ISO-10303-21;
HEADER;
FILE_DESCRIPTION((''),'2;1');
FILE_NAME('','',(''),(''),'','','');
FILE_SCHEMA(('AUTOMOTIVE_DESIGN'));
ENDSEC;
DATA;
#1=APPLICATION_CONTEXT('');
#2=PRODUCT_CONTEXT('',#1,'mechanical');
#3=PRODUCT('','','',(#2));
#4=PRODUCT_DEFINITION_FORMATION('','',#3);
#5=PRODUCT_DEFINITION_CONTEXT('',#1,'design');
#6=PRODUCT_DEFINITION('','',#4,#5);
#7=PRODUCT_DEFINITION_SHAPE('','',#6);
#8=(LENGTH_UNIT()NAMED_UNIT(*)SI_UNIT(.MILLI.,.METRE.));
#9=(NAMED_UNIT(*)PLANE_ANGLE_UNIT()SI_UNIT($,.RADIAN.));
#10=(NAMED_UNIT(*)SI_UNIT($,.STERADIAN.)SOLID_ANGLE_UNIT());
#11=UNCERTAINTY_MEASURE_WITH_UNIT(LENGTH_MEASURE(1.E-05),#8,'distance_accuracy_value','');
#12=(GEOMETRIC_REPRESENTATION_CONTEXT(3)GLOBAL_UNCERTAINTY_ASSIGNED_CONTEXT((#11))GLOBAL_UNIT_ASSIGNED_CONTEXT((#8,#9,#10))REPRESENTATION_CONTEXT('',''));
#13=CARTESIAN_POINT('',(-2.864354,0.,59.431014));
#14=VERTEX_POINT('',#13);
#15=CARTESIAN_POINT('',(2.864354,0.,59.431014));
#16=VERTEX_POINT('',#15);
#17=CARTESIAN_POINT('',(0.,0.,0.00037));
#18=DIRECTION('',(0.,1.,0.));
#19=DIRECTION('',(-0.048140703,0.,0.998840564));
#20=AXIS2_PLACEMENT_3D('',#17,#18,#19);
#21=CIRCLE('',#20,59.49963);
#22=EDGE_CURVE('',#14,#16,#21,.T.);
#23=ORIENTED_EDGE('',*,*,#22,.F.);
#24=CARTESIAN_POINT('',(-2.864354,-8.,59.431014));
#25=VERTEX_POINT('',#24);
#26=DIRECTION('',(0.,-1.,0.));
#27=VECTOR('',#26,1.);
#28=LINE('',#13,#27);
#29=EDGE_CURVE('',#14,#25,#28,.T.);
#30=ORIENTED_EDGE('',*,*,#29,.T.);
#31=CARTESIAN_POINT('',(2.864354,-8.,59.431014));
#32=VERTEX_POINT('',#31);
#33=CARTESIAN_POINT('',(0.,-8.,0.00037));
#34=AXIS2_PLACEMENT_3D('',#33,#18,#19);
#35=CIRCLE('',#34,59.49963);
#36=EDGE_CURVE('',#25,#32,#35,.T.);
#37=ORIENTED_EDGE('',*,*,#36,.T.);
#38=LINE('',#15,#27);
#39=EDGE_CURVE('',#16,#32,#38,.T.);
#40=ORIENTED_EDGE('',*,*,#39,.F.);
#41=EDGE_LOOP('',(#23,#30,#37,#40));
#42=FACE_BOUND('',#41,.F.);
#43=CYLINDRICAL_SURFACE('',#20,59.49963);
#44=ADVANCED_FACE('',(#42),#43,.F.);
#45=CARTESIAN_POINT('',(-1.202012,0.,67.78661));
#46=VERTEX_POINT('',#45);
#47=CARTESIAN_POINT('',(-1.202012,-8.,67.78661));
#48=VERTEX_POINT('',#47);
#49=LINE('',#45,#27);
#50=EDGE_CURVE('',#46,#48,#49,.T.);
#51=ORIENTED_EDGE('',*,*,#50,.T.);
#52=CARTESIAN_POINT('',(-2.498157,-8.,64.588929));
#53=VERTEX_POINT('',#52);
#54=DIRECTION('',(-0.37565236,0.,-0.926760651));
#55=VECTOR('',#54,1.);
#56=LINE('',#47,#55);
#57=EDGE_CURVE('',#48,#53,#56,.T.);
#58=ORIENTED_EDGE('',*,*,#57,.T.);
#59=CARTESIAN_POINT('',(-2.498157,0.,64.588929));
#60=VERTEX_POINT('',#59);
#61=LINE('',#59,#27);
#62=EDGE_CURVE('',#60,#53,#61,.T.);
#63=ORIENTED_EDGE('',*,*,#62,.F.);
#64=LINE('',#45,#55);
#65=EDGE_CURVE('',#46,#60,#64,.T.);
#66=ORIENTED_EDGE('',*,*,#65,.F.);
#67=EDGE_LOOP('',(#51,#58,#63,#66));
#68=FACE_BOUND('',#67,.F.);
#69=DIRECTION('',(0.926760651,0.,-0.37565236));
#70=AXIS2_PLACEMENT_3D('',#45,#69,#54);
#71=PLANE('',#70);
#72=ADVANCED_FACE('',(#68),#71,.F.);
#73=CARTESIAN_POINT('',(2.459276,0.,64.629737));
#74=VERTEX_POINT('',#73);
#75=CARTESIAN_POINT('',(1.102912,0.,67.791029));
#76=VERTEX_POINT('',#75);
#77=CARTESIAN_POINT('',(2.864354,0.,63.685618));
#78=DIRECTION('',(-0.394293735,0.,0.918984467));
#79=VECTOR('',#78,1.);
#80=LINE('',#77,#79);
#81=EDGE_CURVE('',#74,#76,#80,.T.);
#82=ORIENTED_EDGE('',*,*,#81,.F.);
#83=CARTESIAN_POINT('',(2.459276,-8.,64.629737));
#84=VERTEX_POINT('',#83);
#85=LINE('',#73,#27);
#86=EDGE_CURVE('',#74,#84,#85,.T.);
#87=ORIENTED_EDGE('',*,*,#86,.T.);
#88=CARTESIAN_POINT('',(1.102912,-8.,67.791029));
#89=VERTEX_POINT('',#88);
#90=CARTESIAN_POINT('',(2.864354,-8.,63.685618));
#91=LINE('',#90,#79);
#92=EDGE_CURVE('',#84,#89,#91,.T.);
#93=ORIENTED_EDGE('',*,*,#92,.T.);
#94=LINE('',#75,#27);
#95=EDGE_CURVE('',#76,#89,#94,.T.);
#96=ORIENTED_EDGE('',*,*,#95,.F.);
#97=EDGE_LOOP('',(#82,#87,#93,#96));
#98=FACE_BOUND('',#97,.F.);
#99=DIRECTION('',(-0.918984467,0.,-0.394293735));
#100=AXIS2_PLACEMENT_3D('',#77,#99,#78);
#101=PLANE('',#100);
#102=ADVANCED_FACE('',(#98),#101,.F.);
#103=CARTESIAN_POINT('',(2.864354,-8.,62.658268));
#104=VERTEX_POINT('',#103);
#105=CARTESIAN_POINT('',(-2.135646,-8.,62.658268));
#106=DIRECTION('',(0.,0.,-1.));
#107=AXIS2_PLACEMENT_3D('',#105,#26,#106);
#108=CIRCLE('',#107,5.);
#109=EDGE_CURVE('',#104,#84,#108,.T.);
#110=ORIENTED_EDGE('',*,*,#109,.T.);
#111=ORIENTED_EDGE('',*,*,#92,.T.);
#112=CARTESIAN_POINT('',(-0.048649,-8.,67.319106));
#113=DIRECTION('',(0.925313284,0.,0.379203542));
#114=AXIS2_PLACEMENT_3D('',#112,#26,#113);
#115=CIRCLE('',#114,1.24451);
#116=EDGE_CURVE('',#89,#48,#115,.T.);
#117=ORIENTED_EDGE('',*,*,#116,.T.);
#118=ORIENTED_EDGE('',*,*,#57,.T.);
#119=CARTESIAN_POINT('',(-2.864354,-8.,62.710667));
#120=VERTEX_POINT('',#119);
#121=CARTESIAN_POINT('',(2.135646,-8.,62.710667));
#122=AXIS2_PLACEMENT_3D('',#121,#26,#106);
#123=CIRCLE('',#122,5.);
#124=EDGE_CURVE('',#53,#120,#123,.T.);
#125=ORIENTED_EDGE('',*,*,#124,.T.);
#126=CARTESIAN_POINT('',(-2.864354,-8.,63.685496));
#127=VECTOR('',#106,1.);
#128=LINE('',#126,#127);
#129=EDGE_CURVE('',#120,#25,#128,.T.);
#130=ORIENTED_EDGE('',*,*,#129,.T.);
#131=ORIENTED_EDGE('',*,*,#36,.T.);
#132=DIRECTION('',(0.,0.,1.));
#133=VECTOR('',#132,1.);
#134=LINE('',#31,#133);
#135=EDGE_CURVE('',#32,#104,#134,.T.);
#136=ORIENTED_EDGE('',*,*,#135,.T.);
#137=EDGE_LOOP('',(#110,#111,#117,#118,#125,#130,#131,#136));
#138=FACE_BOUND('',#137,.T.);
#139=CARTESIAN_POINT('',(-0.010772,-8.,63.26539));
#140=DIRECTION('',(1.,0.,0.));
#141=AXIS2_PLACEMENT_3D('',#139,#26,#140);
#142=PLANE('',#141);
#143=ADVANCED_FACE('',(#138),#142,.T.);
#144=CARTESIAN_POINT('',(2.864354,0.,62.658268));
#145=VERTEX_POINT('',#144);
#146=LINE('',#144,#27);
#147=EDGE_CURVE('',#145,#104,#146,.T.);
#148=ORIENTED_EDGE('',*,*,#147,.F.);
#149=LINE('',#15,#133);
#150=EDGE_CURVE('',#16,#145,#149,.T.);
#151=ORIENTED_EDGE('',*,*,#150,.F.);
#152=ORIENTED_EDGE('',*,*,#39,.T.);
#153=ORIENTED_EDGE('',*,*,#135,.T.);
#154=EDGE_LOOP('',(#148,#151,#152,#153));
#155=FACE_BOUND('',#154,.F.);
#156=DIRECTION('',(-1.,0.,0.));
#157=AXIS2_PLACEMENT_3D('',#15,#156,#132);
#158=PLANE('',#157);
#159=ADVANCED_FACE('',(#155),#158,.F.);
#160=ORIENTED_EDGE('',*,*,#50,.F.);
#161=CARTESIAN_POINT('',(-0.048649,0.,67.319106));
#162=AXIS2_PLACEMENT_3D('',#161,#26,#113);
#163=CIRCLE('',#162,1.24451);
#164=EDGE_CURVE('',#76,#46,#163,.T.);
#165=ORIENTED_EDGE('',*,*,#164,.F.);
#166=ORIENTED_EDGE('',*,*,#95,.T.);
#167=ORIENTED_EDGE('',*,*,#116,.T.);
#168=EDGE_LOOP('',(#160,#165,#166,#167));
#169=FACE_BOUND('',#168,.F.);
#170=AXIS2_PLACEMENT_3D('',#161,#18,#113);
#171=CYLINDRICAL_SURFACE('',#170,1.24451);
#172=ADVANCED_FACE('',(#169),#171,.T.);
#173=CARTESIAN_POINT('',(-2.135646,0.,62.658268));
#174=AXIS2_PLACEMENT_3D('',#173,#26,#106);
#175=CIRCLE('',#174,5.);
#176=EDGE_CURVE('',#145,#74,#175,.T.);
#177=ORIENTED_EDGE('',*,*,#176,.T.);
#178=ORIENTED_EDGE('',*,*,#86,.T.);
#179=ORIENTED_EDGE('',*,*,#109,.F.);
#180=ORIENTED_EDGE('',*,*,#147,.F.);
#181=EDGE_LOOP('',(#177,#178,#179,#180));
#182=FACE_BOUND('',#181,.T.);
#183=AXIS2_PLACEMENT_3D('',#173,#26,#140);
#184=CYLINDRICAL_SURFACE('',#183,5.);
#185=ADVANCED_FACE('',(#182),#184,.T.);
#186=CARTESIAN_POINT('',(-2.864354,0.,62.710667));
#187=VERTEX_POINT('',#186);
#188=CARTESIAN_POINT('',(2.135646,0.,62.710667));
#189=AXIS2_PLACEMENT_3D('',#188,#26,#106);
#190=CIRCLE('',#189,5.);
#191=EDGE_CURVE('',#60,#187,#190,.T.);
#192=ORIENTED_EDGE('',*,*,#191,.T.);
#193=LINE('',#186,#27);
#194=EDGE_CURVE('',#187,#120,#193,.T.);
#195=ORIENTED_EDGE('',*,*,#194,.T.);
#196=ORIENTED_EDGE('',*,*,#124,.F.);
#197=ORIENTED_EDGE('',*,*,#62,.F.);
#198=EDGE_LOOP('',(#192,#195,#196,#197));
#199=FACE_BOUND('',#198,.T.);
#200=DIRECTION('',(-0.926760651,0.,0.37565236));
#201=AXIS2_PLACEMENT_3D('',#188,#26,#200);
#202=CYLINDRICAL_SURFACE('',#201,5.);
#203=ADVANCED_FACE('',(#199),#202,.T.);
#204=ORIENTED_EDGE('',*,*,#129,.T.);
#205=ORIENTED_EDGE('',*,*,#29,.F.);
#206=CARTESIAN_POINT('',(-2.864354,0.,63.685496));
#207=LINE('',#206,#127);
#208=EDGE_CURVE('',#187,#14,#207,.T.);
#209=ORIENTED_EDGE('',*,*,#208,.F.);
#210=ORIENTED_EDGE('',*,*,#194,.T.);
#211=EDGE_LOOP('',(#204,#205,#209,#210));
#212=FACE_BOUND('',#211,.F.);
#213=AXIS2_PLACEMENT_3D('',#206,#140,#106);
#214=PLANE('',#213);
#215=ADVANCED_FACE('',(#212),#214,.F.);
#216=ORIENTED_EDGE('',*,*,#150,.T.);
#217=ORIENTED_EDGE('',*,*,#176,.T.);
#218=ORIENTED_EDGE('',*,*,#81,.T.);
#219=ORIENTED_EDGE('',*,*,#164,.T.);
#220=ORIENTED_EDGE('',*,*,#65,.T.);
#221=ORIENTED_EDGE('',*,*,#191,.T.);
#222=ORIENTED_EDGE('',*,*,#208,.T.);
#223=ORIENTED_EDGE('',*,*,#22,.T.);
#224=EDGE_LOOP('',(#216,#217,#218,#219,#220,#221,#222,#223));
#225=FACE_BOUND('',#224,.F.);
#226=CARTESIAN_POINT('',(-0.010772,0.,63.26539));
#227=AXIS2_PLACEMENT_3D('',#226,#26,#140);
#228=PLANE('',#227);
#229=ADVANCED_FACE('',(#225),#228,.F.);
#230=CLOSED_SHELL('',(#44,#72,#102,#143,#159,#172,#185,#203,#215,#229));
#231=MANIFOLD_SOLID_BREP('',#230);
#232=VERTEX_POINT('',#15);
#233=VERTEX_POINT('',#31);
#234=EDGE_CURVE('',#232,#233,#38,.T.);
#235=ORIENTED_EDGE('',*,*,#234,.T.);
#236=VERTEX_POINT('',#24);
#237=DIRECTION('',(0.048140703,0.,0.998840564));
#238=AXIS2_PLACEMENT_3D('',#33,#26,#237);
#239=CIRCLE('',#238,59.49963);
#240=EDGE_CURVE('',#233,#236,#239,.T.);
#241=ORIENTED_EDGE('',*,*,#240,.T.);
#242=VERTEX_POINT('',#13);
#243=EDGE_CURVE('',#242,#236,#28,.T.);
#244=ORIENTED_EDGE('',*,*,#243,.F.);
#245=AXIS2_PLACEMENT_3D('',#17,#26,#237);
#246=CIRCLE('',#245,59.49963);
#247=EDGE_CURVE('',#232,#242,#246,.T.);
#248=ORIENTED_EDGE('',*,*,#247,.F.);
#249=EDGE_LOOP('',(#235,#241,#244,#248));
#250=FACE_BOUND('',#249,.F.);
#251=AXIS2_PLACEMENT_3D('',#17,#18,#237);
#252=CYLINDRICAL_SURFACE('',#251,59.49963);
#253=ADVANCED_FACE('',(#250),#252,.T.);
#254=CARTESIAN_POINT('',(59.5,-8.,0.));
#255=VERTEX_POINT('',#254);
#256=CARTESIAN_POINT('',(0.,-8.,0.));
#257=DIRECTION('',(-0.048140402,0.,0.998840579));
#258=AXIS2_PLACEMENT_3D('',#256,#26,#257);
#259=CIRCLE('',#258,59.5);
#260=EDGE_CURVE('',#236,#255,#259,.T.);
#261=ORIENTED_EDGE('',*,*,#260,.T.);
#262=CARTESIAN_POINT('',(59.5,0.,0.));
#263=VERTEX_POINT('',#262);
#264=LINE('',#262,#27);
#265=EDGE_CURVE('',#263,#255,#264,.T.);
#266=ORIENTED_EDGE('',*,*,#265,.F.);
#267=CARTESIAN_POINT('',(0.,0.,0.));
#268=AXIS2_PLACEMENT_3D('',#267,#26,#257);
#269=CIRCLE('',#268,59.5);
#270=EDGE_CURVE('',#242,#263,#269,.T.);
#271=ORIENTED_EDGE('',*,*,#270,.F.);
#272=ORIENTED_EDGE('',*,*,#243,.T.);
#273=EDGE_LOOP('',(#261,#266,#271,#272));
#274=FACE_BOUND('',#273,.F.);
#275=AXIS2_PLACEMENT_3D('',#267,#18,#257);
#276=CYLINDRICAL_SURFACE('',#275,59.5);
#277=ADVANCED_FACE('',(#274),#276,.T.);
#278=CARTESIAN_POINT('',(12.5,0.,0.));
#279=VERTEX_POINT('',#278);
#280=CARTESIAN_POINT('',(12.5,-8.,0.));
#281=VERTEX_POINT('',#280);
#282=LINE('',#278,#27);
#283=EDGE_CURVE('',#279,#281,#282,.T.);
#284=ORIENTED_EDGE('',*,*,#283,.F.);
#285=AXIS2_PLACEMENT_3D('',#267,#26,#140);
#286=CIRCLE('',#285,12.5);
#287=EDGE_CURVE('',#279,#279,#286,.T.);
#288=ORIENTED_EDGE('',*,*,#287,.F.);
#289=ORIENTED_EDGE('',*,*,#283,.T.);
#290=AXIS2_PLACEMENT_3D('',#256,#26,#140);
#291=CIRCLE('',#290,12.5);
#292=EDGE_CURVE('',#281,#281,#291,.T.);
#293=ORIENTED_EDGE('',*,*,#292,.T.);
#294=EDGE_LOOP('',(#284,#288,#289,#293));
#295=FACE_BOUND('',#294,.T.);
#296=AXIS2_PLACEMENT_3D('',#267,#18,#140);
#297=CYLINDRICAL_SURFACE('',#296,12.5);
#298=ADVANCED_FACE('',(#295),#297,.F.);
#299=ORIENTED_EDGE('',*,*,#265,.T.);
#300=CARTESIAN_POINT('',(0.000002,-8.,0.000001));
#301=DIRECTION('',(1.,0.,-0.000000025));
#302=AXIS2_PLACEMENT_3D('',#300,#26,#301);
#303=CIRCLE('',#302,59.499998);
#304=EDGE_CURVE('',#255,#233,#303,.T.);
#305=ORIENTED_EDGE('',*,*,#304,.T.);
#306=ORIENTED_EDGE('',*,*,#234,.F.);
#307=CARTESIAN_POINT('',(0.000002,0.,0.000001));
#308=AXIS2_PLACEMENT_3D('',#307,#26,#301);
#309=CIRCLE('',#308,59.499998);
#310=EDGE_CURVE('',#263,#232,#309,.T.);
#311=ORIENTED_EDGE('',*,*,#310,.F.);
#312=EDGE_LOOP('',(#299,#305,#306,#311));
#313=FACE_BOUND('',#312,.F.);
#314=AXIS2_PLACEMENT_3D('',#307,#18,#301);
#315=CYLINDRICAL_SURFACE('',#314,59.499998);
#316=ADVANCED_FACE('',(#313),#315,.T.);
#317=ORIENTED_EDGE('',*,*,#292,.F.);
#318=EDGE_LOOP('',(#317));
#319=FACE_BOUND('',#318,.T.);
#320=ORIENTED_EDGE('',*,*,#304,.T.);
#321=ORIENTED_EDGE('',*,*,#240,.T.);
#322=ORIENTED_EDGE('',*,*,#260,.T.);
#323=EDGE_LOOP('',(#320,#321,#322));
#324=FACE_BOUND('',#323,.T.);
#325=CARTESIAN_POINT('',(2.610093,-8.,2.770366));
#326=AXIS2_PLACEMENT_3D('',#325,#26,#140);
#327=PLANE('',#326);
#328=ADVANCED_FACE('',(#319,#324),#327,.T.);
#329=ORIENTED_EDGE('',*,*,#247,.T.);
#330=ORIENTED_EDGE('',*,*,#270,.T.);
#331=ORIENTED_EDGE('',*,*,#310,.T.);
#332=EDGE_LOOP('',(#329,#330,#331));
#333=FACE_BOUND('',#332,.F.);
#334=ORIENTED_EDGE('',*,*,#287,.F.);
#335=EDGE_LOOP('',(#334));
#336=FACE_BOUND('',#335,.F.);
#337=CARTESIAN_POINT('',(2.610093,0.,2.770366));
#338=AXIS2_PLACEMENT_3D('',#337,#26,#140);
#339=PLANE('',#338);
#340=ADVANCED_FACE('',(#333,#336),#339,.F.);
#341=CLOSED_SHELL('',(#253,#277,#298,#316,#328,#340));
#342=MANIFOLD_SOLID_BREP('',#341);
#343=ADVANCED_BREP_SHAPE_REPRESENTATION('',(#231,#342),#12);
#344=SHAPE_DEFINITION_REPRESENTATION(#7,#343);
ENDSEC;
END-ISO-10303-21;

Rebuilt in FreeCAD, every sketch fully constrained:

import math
import FreeCAD as App
import Part
import Sketcher
from FreeCAD import Vector


def edges_at(feature, points):
    """Names of the edges that pass closest to the given points."""
    edges = feature.Shape.Edges
    near = lambda p: min(range(len(edges)), key=lambda i: edges[i].distToShape(Part.Vertex(*p))[0])
    return sorted({f"Edge{near(p) + 1}" for p in points})

doc = App.newDocument("Part")
body = doc.addObject("PartDesign::Body", "Body")

# Sketch on XZ plane
sketch1 = body.newObject("Sketcher::SketchObject", "Sketch")
sketch1.AttachmentSupport = (doc.getObject("XZ_Plane"), [""])
sketch1.MapMode = "FlatFace"
sketch1.addGeometry([
    Part.ArcOfCircle(Part.Circle(Vector(0, 0, 0), Vector(0, 0, 1), 59.5), math.radians(92.759308), math.radians(360)),
    Part.ArcOfCircle(Part.Circle(Vector(0.000002, 0.000001, 0), Vector(0, 0, 1), 59.499998), math.radians(-0.000001), math.radians(87.240693)),
    Part.ArcOfCircle(Part.Circle(Vector(0, 0.00037, 0), Vector(0, 0, 1), 59.49963), math.radians(87.240674), math.radians(92.759326)),
    Part.Circle(Vector(0, 0, 0), Vector(0, 0, 1), 12.5),
], False)
sketch1.addConstraint([
    Sketcher.Constraint("Coincident", 0, 2, 1, 1),
    Sketcher.Constraint("Coincident", 1, 2, 2, 1),
    Sketcher.Constraint("Coincident", 2, 2, 0, 1),
    Sketcher.Constraint("Coincident", 0, 3, -1, 1),
    Sketcher.Constraint("Coincident", 1, 3, -1, 1),
    Sketcher.Constraint("Coincident", 3, 3, -1, 1),
    Sketcher.Constraint("PointOnObject", 0, 2, -1),
    Sketcher.Constraint("Diameter", 3, 25.0),
    Sketcher.Constraint("Radius", 0, 59.5),
    Sketcher.Constraint("Radius", 2, 59.49963),
    Sketcher.Constraint("DistanceX", 1, 3, 1, 2, 2.864352),
    Sketcher.Constraint("DistanceX", 2, 2, -1, 1, 2.864354),
])
pad1 = body.newObject("PartDesign::Pad", "Pad")
pad1.Profile = sketch1
pad1.Length = 8
body2 = doc.addObject("PartDesign::Body", "Body001")

# Sketch on XZ plane
sketch2 = body2.newObject("Sketcher::SketchObject", "Sketch001")
sketch2.AttachmentSupport = (doc.getObject("XZ_Plane001"), [""])
sketch2.MapMode = "FlatFace"
sketch2.addGeometry([
    Part.ArcOfCircle(Part.Circle(Vector(0, 0, 0), Vector(0, 0, 1), 59.5), math.radians(87.24), math.radians(92.76)),  # 0
    Part.LineSegment(Vector(2.9, 59.4, 0), Vector(2.9, 63.7, 0)),  # 1
    Part.LineSegment(Vector(2.9, 63.7, 0), Vector(1.1, 67.8, 0)),  # 2
    Part.ArcOfCircle(Part.Circle(Vector(0, 67.3, 0), Vector(0, 0, 1), 1.2), math.radians(22), math.radians(158)),  # 3
    Part.LineSegment(Vector(-1.2, 67.8, 0), Vector(-2.9, 63.7, 0)),  # 4
    Part.LineSegment(Vector(-2.9, 63.7, 0), Vector(-2.9, 59.4, 0)),  # 5
], False)
sketch2.addConstraint([
    Sketcher.Constraint("Coincident", 0, 1, 1, 1),
    Sketcher.Constraint("Coincident", 1, 2, 2, 1),
    Sketcher.Constraint("Coincident", 2, 2, 3, 1),
    Sketcher.Constraint("Tangent", 3, 2, 4, 1),
    Sketcher.Constraint("Coincident", 4, 2, 5, 1),
    Sketcher.Constraint("Coincident", 5, 2, 0, 2),
    Sketcher.Constraint("Vertical", 1),
    Sketcher.Constraint("Vertical", 5),
    Sketcher.Constraint("Symmetric", 0, 1, 5, 2, -2),
    Sketcher.Constraint("Radius", 0, 59.49963),
    Sketcher.Constraint("Radius", 3, 1.24451),
    Sketcher.Constraint("DistanceY", 1, 1, 1, 2, 4.254604),
    Sketcher.Constraint("DistanceY", 5, 2, 5, 1, 4.254482),
    Sketcher.Constraint("DistanceY", -1, 1, 0, 3, 0.00037),
    Sketcher.Constraint("DistanceX", 3, 3, -1, 1, 0.048649),
    Sketcher.Constraint("DistanceX", -1, 1, 2, 2, 1.102912),
    Sketcher.Constraint("DistanceY", -1, 1, 2, 2, 67.791029),
    Sketcher.Constraint("DistanceY", -1, 1, 3, 2, 67.78661),
])
pad2 = body2.newObject("PartDesign::Pad", "Pad001")
pad2.Profile = sketch2
pad2.Length = 8
doc.recompute()

fillet = body2.newObject("PartDesign::Fillet", "Fillet")
fillet.Base = (pad2, edges_at(pad2, [(2.864, -4, 63.686), (-2.864, -4, 63.685)]))
fillet.Radius = 5

doc.recompute()
